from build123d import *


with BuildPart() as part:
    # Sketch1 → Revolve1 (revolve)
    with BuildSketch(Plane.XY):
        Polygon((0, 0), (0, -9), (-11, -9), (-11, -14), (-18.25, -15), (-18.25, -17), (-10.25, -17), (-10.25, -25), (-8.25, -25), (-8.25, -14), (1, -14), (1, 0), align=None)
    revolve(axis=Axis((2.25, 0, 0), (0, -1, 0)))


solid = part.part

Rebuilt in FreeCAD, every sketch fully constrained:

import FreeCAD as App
import Part
import Sketcher

V = App.Vector
Q = App.Units.Quantity

doc = App.newDocument("Part")
body = doc.addObject("PartDesign::Body", "Body")

# Sketch on XY plane
sketch1 = body.newObject("Sketcher::SketchObject", "Sketch")
sketch1.AttachmentSupport = (doc.getObject("XY_Plane"), [""])
sketch1.MapMode = "FlatFace"
sketch1.addGeometry([
    Part.LineSegment(V(0, 0, 0), V(0, -9, 0)),  # 0
    Part.LineSegment(V(0, -9, 0), V(-11, -9, 0)),  # 1
    Part.LineSegment(V(-11, -9, 0), V(-11, -14, 0)),  # 2
    Part.LineSegment(V(-11, -14, 0), V(-18.2, -15, 0)),  # 3
    Part.LineSegment(V(-18.2, -15, 0), V(-18.2, -17, 0)),  # 4
    Part.LineSegment(V(-18.2, -17, 0), V(-10.2, -17, 0)),  # 5
    Part.LineSegment(V(-10.2, -17, 0), V(-10.2, -25, 0)),  # 6
    Part.LineSegment(V(-10.2, -25, 0), V(-8.2, -25, 0)),  # 7
    Part.LineSegment(V(-8.2, -25, 0), V(-8.2, -14, 0)),  # 8
    Part.LineSegment(V(-8.2, -14, 0), V(1, -14, 0)),  # 9
    Part.LineSegment(V(1, -14, 0), V(1, 0, 0)),  # 10
    Part.LineSegment(V(1, 0, 0), V(0, 0, 0)),  # 11
], False)
sketch1.addGeometry(Part.LineSegment(V(2.2, 0, 0), V(2.2, -25, 0)), True)  # axis
sketch1.addConstraint([
    Sketcher.Constraint("Coincident", 0, 2, 1, 1),
    Sketcher.Constraint("Coincident", 1, 2, 2, 1),
    Sketcher.Constraint("Coincident", 2, 2, 3, 1),
    Sketcher.Constraint("Coincident", 3, 2, 4, 1),
    Sketcher.Constraint("Coincident", 4, 2, 5, 1),
    Sketcher.Constraint("Coincident", 5, 2, 6, 1),
    Sketcher.Constraint("Coincident", 6, 2, 7, 1),
    Sketcher.Constraint("Coincident", 7, 2, 8, 1),
    Sketcher.Constraint("Coincident", 8, 2, 9, 1),
    Sketcher.Constraint("Coincident", 9, 2, 10, 1),
    Sketcher.Constraint("Coincident", 10, 2, 11, 1),
    Sketcher.Constraint("Coincident", 11, 2, 0, 1),
    Sketcher.Constraint("Vertical", 0),
    Sketcher.Constraint("Horizontal", 1),
    Sketcher.Constraint("Vertical", 2),
    Sketcher.Constraint("Vertical", 4),
    Sketcher.Constraint("Horizontal", 5),
    Sketcher.Constraint("Vertical", 6),
    Sketcher.Constraint("Horizontal", 7),
    Sketcher.Constraint("Vertical", 8),
    Sketcher.Constraint("Horizontal", 9),
    Sketcher.Constraint("Vertical", 10),
    Sketcher.Constraint("Horizontal", 11),
    Sketcher.Constraint("Vertical", 12),
    Sketcher.Constraint("Coincident", 11, 2, -1, 1),
    Sketcher.Constraint("PointOnObject", 12, 1, -1),
    Sketcher.Constraint("Horizontal", 2, 2, 8, 2),
    Sketcher.Constraint("Horizontal", 7, 2, 12, 2),
    Sketcher.Constraint("Equal", 7, 4),
    Sketcher.Constraint("Equal", 5, 6),
    Sketcher.Constraint("Equal", 1, 8),
    Sketcher.Constraint("DistanceX", 1, 2, 1, 1, Q("11 mm")),
    Sketcher.Constraint("DistanceX", 5, 1, 5, 2, Q("8 mm")),
    Sketcher.Constraint("DistanceX", 7, 1, 7, 2, Q("2 mm")),
    Sketcher.Constraint("DistanceX", 11, 2, 11, 1, Q("1 mm")),
    Sketcher.Constraint("DistanceY", 0, 2, 0, 1, Q("9 mm")),
    Sketcher.Constraint("DistanceY", 2, 2, 2, 1, Q("5 mm")),
    Sketcher.Constraint("DistanceX", 9, 1, 9, 2, Q("9.25 mm")),
    Sketcher.Constraint("DistanceX", 7, 2, 12, 2, Q("10.5 mm")),
])
revolution = body.newObject("PartDesign::Revolution", "Revolution")
revolution.Profile = sketch1
revolution.ReferenceAxis = (sketch1, ["Axis0"])
revolution.Angle = 360

doc.recompute()
